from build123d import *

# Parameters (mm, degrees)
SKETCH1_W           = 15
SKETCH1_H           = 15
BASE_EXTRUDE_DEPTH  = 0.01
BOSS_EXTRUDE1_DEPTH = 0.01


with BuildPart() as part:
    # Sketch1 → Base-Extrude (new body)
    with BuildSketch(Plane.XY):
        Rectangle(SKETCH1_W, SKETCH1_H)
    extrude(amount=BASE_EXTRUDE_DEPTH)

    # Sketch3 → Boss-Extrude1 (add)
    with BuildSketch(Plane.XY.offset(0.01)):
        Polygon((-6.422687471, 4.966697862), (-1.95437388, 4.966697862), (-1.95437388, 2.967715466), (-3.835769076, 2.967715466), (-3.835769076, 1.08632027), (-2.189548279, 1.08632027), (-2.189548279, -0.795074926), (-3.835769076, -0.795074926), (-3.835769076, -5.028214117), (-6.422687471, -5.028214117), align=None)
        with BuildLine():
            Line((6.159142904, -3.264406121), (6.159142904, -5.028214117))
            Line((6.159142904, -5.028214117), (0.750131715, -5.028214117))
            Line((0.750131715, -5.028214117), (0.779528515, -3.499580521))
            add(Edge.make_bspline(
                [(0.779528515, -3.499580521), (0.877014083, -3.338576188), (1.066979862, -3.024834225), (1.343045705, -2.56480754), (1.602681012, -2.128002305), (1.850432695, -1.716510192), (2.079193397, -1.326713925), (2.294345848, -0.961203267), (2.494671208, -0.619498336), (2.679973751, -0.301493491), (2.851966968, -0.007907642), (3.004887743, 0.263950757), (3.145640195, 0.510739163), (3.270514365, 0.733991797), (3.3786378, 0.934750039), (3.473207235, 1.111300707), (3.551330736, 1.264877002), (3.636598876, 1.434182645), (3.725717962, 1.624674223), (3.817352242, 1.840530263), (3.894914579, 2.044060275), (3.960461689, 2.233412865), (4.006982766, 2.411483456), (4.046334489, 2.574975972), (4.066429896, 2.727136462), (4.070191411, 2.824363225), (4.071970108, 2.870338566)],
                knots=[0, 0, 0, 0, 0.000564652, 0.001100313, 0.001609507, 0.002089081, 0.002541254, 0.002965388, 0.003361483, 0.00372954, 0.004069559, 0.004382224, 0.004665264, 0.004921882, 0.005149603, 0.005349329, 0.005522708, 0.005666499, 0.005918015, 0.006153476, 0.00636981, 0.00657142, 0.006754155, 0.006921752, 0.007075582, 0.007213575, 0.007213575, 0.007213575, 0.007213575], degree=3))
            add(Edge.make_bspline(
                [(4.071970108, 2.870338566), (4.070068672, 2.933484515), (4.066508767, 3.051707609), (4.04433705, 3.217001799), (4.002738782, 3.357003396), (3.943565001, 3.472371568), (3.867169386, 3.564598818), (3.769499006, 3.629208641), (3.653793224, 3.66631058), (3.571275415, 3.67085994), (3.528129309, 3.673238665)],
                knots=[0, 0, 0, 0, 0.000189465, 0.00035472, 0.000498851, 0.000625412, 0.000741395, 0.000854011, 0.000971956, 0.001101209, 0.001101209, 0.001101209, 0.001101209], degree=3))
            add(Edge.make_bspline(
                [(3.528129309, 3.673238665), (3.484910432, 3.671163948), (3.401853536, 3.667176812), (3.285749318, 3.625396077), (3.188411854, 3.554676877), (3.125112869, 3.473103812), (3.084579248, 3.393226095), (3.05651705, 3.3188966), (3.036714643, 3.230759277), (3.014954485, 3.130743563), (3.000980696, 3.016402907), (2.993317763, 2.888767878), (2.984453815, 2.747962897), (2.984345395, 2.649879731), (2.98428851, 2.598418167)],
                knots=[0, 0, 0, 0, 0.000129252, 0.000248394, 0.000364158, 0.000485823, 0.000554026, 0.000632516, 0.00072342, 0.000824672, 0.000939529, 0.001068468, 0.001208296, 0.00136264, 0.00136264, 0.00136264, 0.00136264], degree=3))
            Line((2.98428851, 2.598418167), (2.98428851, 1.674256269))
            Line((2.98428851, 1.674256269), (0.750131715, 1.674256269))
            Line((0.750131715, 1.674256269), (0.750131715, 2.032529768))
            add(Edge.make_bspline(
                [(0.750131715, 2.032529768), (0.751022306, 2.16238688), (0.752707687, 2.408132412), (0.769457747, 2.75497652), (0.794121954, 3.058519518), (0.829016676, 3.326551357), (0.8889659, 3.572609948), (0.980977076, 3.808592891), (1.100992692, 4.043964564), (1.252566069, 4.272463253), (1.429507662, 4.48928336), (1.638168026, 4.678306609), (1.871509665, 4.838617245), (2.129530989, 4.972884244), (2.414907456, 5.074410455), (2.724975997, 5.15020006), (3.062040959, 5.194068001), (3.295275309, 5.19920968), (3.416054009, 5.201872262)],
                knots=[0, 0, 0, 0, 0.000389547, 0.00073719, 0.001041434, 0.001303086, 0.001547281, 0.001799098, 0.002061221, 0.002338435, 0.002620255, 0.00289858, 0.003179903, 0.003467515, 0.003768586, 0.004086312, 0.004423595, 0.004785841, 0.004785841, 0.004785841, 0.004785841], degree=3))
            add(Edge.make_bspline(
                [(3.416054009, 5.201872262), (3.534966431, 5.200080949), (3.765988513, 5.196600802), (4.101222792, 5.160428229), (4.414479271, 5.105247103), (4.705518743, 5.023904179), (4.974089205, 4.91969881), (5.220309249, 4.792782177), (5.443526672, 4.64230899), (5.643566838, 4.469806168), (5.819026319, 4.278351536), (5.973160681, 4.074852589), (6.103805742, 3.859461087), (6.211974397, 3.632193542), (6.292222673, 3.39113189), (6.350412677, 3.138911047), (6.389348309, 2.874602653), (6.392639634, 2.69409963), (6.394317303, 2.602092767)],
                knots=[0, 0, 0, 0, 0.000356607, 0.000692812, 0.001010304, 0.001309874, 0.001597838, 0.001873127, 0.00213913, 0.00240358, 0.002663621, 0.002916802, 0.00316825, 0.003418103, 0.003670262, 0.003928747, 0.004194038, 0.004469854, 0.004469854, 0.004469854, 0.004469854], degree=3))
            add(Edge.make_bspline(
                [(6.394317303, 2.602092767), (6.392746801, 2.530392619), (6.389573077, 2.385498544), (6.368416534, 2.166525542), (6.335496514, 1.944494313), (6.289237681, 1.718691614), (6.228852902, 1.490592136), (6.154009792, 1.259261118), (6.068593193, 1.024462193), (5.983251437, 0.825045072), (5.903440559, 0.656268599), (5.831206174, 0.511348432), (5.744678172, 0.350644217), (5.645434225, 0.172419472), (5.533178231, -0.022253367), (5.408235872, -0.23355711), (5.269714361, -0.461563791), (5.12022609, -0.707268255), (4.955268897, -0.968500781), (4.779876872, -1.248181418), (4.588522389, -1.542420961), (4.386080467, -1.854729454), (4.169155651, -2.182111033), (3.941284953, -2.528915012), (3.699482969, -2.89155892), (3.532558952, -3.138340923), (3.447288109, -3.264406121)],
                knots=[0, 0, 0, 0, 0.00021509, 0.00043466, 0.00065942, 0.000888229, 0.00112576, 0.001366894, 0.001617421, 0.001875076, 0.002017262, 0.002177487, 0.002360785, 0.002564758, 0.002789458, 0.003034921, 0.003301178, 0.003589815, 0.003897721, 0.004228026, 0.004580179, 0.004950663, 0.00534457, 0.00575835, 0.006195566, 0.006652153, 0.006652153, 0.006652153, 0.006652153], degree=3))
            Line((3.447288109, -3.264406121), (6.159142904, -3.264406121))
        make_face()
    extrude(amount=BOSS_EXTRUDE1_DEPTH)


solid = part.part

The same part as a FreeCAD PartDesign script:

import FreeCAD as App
import Part
import Sketcher
from FreeCAD import Vector
Q = App.Units.Quantity

doc = App.newDocument("Part")
body = doc.addObject("PartDesign::Body", "Body")

# Sketch on XY plane
sketch1 = body.newObject("Sketcher::SketchObject", "Sketch")
sketch1.AttachmentSupport = (doc.getObject("XY_Plane"), [""])
sketch1.MapMode = "FlatFace"
sketch1.addGeometry([
    Part.LineSegment(Vector(-8, 8, 0), Vector(-8, -8, 0)),
    Part.LineSegment(Vector(-8, -8, 0), Vector(8, -8, 0)),
    Part.LineSegment(Vector(8, -8, 0), Vector(8, 8, 0)),
    Part.LineSegment(Vector(8, 8, 0), Vector(-8, 8, 0)),
], False)
sketch1.addConstraint([
    Sketcher.Constraint("Coincident", 0, 2, 1, 1),
    Sketcher.Constraint("Coincident", 1, 2, 2, 1),
    Sketcher.Constraint("Coincident", 2, 2, 3, 1),
    Sketcher.Constraint("Coincident", 3, 2, 0, 1),
    Sketcher.Constraint("Vertical", 0),
    Sketcher.Constraint("Horizontal", 1),
    Sketcher.Constraint("Vertical", 2),
    Sketcher.Constraint("Horizontal", 3),
    Sketcher.Constraint("Symmetric", 0, 2, 2, 2, -1, 1),
    Sketcher.Constraint("Equal", 3, 0),
    Sketcher.Constraint("DistanceX", 1, 1, 1, 2, Q("15 mm")),
])
pad1 = body.newObject("PartDesign::Pad", "Pad")
pad1.Profile = sketch1
pad1.Length = 0.01

# Sketch on XY plane
sketch2 = body.newObject("Sketcher::SketchObject", "Sketch001")
sketch2.AttachmentSupport = (doc.getObject("XY_Plane"), [""])
sketch2.MapMode = "FlatFace"
sketch2.AttachmentOffset = App.Placement(Vector(0, 0, 0.01), App.Rotation())
sketch2.addGeometry([
    Part.LineSegment(Vector(-1.954374, 4.966698, 0), Vector(-6.422687, 4.966698, 0)),  # 0
    Part.LineSegment(Vector(-6.422687, 4.966698, 0), Vector(-6.422687, -5.028214, 0)),  # 1
    Part.LineSegment(Vector(-6.422687, -5.028214, 0), Vector(-3.835769, -5.028214, 0)),  # 2
    Part.LineSegment(Vector(-3.835769, -5.028214, 0), Vector(-3.835769, -0.795075, 0)),  # 3
    Part.LineSegment(Vector(-3.835769, -0.795075, 0), Vector(-2.189548, -0.795075, 0)),  # 4
    Part.LineSegment(Vector(-2.189548, -0.795075, 0), Vector(-2.189548, 1.08632, 0)),  # 5
    Part.LineSegment(Vector(-2.189548, 1.08632, 0), Vector(-3.835769, 1.08632, 0)),  # 6
    Part.LineSegment(Vector(-3.835769, 1.08632, 0), Vector(-3.835769, 2.967715, 0)),  # 7
    Part.LineSegment(Vector(-3.835769, 2.967715, 0), Vector(-1.954374, 2.967715, 0)),  # 8
    Part.LineSegment(Vector(-1.954374, 2.967715, 0), Vector(-1.954374, 4.966698, 0)),  # 9
    Part.LineSegment(Vector(6.159143, -5.028214, 0), Vector(6.159143, -3.264406, 0)),  # 10
    Part.LineSegment(Vector(6.159143, -3.264406, 0), Vector(3.447288, -3.264406, 0)),  # 11
    Part.BSplineCurve([Vector(6.394317, 2.602093, 0), Vector(6.392747, 2.530393, 0), Vector(6.389573, 2.385499, 0), Vector(6.368417, 2.166526, 0), Vector(6.335497, 1.944494, 0), Vector(6.289238, 1.718692, 0), Vector(6.228853, 1.490592, 0), Vector(6.15401, 1.259261, 0), Vector(6.068593, 1.024462, 0), Vector(5.983251, 0.825045, 0), Vector(5.903441, 0.656269, 0), Vector(5.831206, 0.511348, 0), Vector(5.744678, 0.350644, 0), Vector(5.645434, 0.172419, 0), Vector(5.533178, -0.022253, 0), Vector(5.408236, -0.233557, 0), Vector(5.269714, -0.461564, 0), Vector(5.120226, -0.707268, 0), Vector(4.955269, -0.968501, 0), Vector(4.779877, -1.248181, 0), Vector(4.588522, -1.542421, 0), Vector(4.38608, -1.854729, 0), Vector(4.169156, -2.182111, 0), Vector(3.941285, -2.528915, 0), Vector(3.699483, -2.891559, 0), Vector(3.532559, -3.138341, 0), Vector(3.447288, -3.264406, 0)], [4, 1, 1, 1, 1, 1, 1, 1, 1, 1, 1, 1, 1, 1, 1, 1, 1, 1, 1, 1, 1, 1, 1, 1, 4], [0, 0.00021509, 0.00043466, 0.00065942, 0.000888229, 0.00112576, 0.001366894, 0.001617421, 0.001875076, 0.002017262, 0.002177487, 0.002360785, 0.002564758, 0.002789458, 0.003034921, 0.003301178, 0.003589815, 0.003897721, 0.004228026, 0.004580179, 0.004950663, 0.00534457, 0.00575835, 0.006195566, 0.006652153], False, 3, [1, 1, 1, 1, 1, 1, 1, 1, 1, 1, 1, 1, 1, 1, 1, 1, 1, 1, 1, 1, 1, 1, 1, 1, 1, 1, 1], False),  # 12
    Part.BSplineCurve([Vector(3.416054, 5.201872, 0), Vector(3.534966, 5.200081, 0), Vector(3.765989, 5.196601, 0), Vector(4.101223, 5.160428, 0), Vector(4.414479, 5.105247, 0), Vector(4.705519, 5.023904, 0), Vector(4.974089, 4.919699, 0), Vector(5.220309, 4.792782, 0), Vector(5.443527, 4.642309, 0), Vector(5.643567, 4.469806, 0), Vector(5.819026, 4.278352, 0), Vector(5.973161, 4.074853, 0), Vector(6.103806, 3.859461, 0), Vector(6.211974, 3.632194, 0), Vector(6.292223, 3.391132, 0), Vector(6.350413, 3.138911, 0), Vector(6.389348, 2.874603, 0), Vector(6.39264, 2.6941, 0), Vector(6.394317, 2.602093, 0)], [4, 1, 1, 1, 1, 1, 1, 1, 1, 1, 1, 1, 1, 1, 1, 1, 4], [0, 0.000356607, 0.000692812, 0.001010304, 0.001309874, 0.001597838, 0.001873127, 0.00213913, 0.00240358, 0.002663621, 0.002916802, 0.00316825, 0.003418103, 0.003670262, 0.003928747, 0.004194038, 0.004469854], False, 3, [1, 1, 1, 1, 1, 1, 1, 1, 1, 1, 1, 1, 1, 1, 1, 1, 1, 1, 1], False),  # 13
    Part.BSplineCurve([Vector(0.750132, 2.03253, 0), Vector(0.751022, 2.162387, 0), Vector(0.752708, 2.408132, 0), Vector(0.769458, 2.754977, 0), Vector(0.794122, 3.05852, 0), Vector(0.829017, 3.326551, 0), Vector(0.888966, 3.57261, 0), Vector(0.980977, 3.808593, 0), Vector(1.100993, 4.043965, 0), Vector(1.252566, 4.272463, 0), Vector(1.429508, 4.489283, 0), Vector(1.638168, 4.678307, 0), Vector(1.87151, 4.838617, 0), Vector(2.129531, 4.972884, 0), Vector(2.414907, 5.07441, 0), Vector(2.724976, 5.1502, 0), Vector(3.062041, 5.194068, 0), Vector(3.295275, 5.19921, 0), Vector(3.416054, 5.201872, 0)], [4, 1, 1, 1, 1, 1, 1, 1, 1, 1, 1, 1, 1, 1, 1, 1, 4], [0, 0.000389547, 0.00073719, 0.001041434, 0.001303086, 0.001547281, 0.001799098, 0.002061221, 0.002338435, 0.002620255, 0.00289858, 0.003179903, 0.003467515, 0.003768586, 0.004086312, 0.004423595, 0.004785841], False, 3, [1, 1, 1, 1, 1, 1, 1, 1, 1, 1, 1, 1, 1, 1, 1, 1, 1, 1, 1], False),  # 14
    Part.LineSegment(Vector(0.750132, 2.03253, 0), Vector(0.750132, 1.674256, 0)),  # 15
    Part.LineSegment(Vector(0.750132, 1.674256, 0), Vector(2.984289, 1.674256, 0)),  # 16
    Part.LineSegment(Vector(2.984289, 1.674256, 0), Vector(2.984289, 2.598418, 0)),  # 17
    Part.BSplineCurve([Vector(3.528129, 3.673239, 0), Vector(3.48491, 3.671164, 0), Vector(3.401854, 3.667177, 0), Vector(3.285749, 3.625396, 0), Vector(3.188412, 3.554677, 0), Vector(3.125113, 3.473104, 0), Vector(3.084579, 3.393226, 0), Vector(3.056517, 3.318897, 0), Vector(3.036715, 3.230759, 0), Vector(3.014954, 3.130744, 0), Vector(3.000981, 3.016403, 0), Vector(2.993318, 2.888768, 0), Vector(2.984454, 2.747963, 0), Vector(2.984345, 2.64988, 0), Vector(2.984289, 2.598418, 0)], [4, 1, 1, 1, 1, 1, 1, 1, 1, 1, 1, 1, 4], [0, 0.000129252, 0.000248394, 0.000364158, 0.000485823, 0.000554026, 0.000632516, 0.00072342, 0.000824672, 0.000939529, 0.001068468, 0.001208296, 0.00136264], False, 3, [1, 1, 1, 1, 1, 1, 1, 1, 1, 1, 1, 1, 1, 1, 1], False),  # 18
    Part.BSplineCurve([Vector(4.07197, 2.870339, 0), Vector(4.070069, 2.933485, 0), Vector(4.066509, 3.051708, 0), Vector(4.044337, 3.217002, 0), Vector(4.002739, 3.357003, 0), Vector(3.943565, 3.472372, 0), Vector(3.867169, 3.564599, 0), Vector(3.769499, 3.629209, 0), Vector(3.653793, 3.666311, 0), Vector(3.571275, 3.67086, 0), Vector(3.528129, 3.673239, 0)], [4, 1, 1, 1, 1, 1, 1, 1, 4], [0, 0.000189465, 0.00035472, 0.000498851, 0.000625412, 0.000741395, 0.000854011, 0.000971956, 0.001101209], False, 3, [1, 1, 1, 1, 1, 1, 1, 1, 1, 1, 1], False),  # 19
    Part.BSplineCurve([Vector(0.779529, -3.499581, 0), Vector(0.877014, -3.338576, 0), Vector(1.06698, -3.024834, 0), Vector(1.343046, -2.564808, 0), Vector(1.602681, -2.128002, 0), Vector(1.850433, -1.71651, 0), Vector(2.079193, -1.326714, 0), Vector(2.294346, -0.961203, 0), Vector(2.494671, -0.619498, 0), Vector(2.679974, -0.301493, 0), Vector(2.851967, -0.007908, 0), Vector(3.004888, 0.263951, 0), Vector(3.14564, 0.510739, 0), Vector(3.270514, 0.733992, 0), Vector(3.378638, 0.93475, 0), Vector(3.473207, 1.111301, 0), Vector(3.551331, 1.264877, 0), Vector(3.636599, 1.434183, 0), Vector(3.725718, 1.624674, 0), Vector(3.817352, 1.84053, 0), Vector(3.894915, 2.04406, 0), Vector(3.960462, 2.233413, 0), Vector(4.006983, 2.411483, 0), Vector(4.046334, 2.574976, 0), Vector(4.06643, 2.727136, 0), Vector(4.070191, 2.824363, 0), Vector(4.07197, 2.870339, 0)], [4, 1, 1, 1, 1, 1, 1, 1, 1, 1, 1, 1, 1, 1, 1, 1, 1, 1, 1, 1, 1, 1, 1, 1, 4], [0, 0.000564652, 0.001100313, 0.001609507, 0.002089081, 0.002541254, 0.002965388, 0.003361483, 0.00372954, 0.004069559, 0.004382224, 0.004665264, 0.004921882, 0.005149603, 0.005349329, 0.005522708, 0.005666499, 0.005918015, 0.006153476, 0.00636981, 0.00657142, 0.006754155, 0.006921752, 0.007075582, 0.007213575], False, 3, [1, 1, 1, 1, 1, 1, 1, 1, 1, 1, 1, 1, 1, 1, 1, 1, 1, 1, 1, 1, 1, 1, 1, 1, 1, 1, 1], False),  # 20
    Part.LineSegment(Vector(0.779529, -3.499581, 0), Vector(0.750132, -5.028214, 0)),  # 21
    Part.LineSegment(Vector(0.750132, -5.028214, 0), Vector(6.159143, -5.028214, 0)),  # 22
], False)
sketch2.addConstraint([
    Sketcher.Constraint("Block", 12),
    Sketcher.Constraint("Block", 13),
    Sketcher.Constraint("Block", 14),
    Sketcher.Constraint("Block", 18),
    Sketcher.Constraint("Block", 19),
    Sketcher.Constraint("Block", 20),
    Sketcher.Constraint("Coincident", 0, 2, 1, 1),
    Sketcher.Constraint("Coincident", 1, 2, 2, 1),
    Sketcher.Constraint("Coincident", 2, 2, 3, 1),
    Sketcher.Constraint("Coincident", 3, 2, 4, 1),
    Sketcher.Constraint("Coincident", 4, 2, 5, 1),
    Sketcher.Constraint("Coincident", 5, 2, 6, 1),
    Sketcher.Constraint("Coincident", 6, 2, 7, 1),
    Sketcher.Constraint("Coincident", 7, 2, 8, 1),
    Sketcher.Constraint("Coincident", 8, 2, 9, 1),
    Sketcher.Constraint("Coincident", 9, 2, 0, 1),
    Sketcher.Constraint("Coincident", 10, 2, 11, 1),
    Sketcher.Constraint("Coincident", 11, 2, 12, 2),
    Sketcher.Constraint("Coincident", 14, 1, 15, 1),
    Sketcher.Constraint("Coincident", 15, 2, 16, 1),
    Sketcher.Constraint("Coincident", 16, 2, 17, 1),
    Sketcher.Constraint("Coincident", 17, 2, 18, 2),
    Sketcher.Constraint("Coincident", 20, 1, 21, 1),
    Sketcher.Constraint("Coincident", 21, 2, 22, 1),
    Sketcher.Constraint("Coincident", 22, 2, 10, 1),
    Sketcher.Constraint("Horizontal", 0),
    Sketcher.Constraint("Vertical", 1),
    Sketcher.Constraint("Horizontal", 2),
    Sketcher.Constraint("Vertical", 3),
    Sketcher.Constraint("Horizontal", 4),
    Sketcher.Constraint("Vertical", 5),
    Sketcher.Constraint("Horizontal", 6),
    Sketcher.Constraint("Vertical", 7),
    Sketcher.Constraint("Horizontal", 8),
    Sketcher.Constraint("Vertical", 9),
    Sketcher.Constraint("Vertical", 10),
    Sketcher.Constraint("Horizontal", 11),
    Sketcher.Constraint("Vertical", 15),
    Sketcher.Constraint("Horizontal", 16),
    Sketcher.Constraint("Vertical", 17),
    Sketcher.Constraint("Horizontal", 22),
    Sketcher.Constraint("Horizontal", 2, 2, 21, 2),
    Sketcher.Constraint("Vertical", 3, 2, 6, 2),
    Sketcher.Constraint("Vertical", 15, 2, 21, 2),
    Sketcher.Constraint("Equal", 8, 5),
    Sketcher.Constraint("Equal", 5, 7),
    Sketcher.Constraint("DistanceX", 2, 1, 2, 2, Q("2.586918 mm")),
    Sketcher.Constraint("DistanceX", 4, 1, 4, 2, Q("1.646221 mm")),
    Sketcher.Constraint("DistanceX", 22, 1, 22, 2, Q("5.409011 mm")),
    Sketcher.Constraint("DistanceY", 1, 2, 1, 1, Q("9.994912 mm")),
    Sketcher.Constraint("DistanceY", 3, 1, 3, 2, Q("4.233139 mm")),
    Sketcher.Constraint("DistanceY", 17, 1, 17, 2, Q("0.924162 mm")),
    Sketcher.Constraint("DistanceX", 6, 2, 15, 2, Q("4.585901 mm")),
    Sketcher.Constraint("DistanceX", 0, 2, 0, 1, Q("4.468314 mm")),
    Sketcher.Constraint("DistanceY", 10, 1, 10, 2, Q("1.763808 mm")),
])
pad2 = body.newObject("PartDesign::Pad", "Pad001")
pad2.Profile = sketch2
pad2.Length = 0.01

doc.recompute()
